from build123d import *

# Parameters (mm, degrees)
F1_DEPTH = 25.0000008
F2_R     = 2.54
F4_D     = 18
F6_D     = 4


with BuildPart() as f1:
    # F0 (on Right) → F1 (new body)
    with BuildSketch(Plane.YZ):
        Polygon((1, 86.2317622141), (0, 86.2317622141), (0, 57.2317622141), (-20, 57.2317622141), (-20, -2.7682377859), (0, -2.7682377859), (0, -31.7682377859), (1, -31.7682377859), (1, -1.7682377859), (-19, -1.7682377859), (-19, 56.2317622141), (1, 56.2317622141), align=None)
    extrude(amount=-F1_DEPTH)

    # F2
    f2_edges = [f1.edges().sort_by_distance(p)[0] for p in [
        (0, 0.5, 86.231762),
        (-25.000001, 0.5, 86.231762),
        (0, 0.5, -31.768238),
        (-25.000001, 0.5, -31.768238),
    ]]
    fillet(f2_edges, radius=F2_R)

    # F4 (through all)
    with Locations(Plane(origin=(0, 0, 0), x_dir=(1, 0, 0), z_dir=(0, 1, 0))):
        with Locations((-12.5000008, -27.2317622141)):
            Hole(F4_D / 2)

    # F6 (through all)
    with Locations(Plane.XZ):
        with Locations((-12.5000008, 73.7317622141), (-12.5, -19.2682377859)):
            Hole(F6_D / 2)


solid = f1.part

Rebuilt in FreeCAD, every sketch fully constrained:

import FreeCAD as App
import Part
import Sketcher
from FreeCAD import Vector
Q = App.Units.Quantity


def edges_at(feature, points):
    """Names of the edges that pass closest to the given points."""
    edges = feature.Shape.Edges
    near = lambda p: min(range(len(edges)), key=lambda i: edges[i].distToShape(Part.Vertex(*p))[0])
    return sorted({f"Edge{near(p) + 1}" for p in points})

doc = App.newDocument("Part")
params = doc.addObject("Spreadsheet::Sheet", "Params")
for row, (alias, value) in enumerate([
    ("sketch1_width", "1 mm"),
    ("sketch1_width2", "20 mm"),
    ("sketch1_height", "29 mm"),
    ("sketch1_height2", "60 mm"),
    ("sketch1_height3", "30 mm"),
    ("pad1_length", "25.000001 mm"),
    ("fillet_radius", "2.54 mm"),
    ("sketch2_diameter", "18 mm"),
    ("hole_diameter", "18 mm"),
    ("sketch3_diameter", "4 mm"),
    ("hole2_diameter", "4 mm"),
], start=1):
    params.set(f"A{row}", alias)
    params.set(f"B{row}", "=" + value)
    params.setAlias(f"B{row}", alias)

body = doc.addObject("PartDesign::Body", "Body")

# Sketch on YZ plane
sketch1 = doc.addObject("Sketcher::SketchObject", "Sketch")
body.addObject(sketch1)
sketch1.AttachmentSupport = (doc.YZ_Plane, [""])
sketch1.MapMode = "FlatFace"
sketch1.addGeometry(Part.LineSegment(Vector(1, 86.2, 0), Vector(0, 86.2, 0)), False)
sketch1.addGeometry(Part.LineSegment(Vector(0, 86.2, 0), Vector(0, 57.2, 0)), False)
sketch1.addGeometry(Part.LineSegment(Vector(0, 57.2, 0), Vector(-20, 57.2, 0)), False)
sketch1.addGeometry(Part.LineSegment(Vector(-20, 57.2, 0), Vector(-20, -2.8, 0)), False)
sketch1.addGeometry(Part.LineSegment(Vector(-20, -2.8, 0), Vector(0, -2.8, 0)), False)
sketch1.addGeometry(Part.LineSegment(Vector(0, -2.8, 0), Vector(0, -31.8, 0)), False)
sketch1.addGeometry(Part.LineSegment(Vector(0, -31.8, 0), Vector(1, -31.8, 0)), False)
sketch1.addGeometry(Part.LineSegment(Vector(1, -31.8, 0), Vector(1, -1.8, 0)), False)
sketch1.addGeometry(Part.LineSegment(Vector(1, -1.8, 0), Vector(-19, -1.8, 0)), False)
sketch1.addGeometry(Part.LineSegment(Vector(-19, -1.8, 0), Vector(-19, 56.2, 0)), False)
sketch1.addGeometry(Part.LineSegment(Vector(-19, 56.2, 0), Vector(1, 56.2, 0)), False)
sketch1.addGeometry(Part.LineSegment(Vector(1, 56.2, 0), Vector(1, 86.2, 0)), False)
sketch1.addConstraint(Sketcher.Constraint("Coincident", 0, 2, 1, 1))
sketch1.addConstraint(Sketcher.Constraint("Coincident", 1, 2, 2, 1))
sketch1.addConstraint(Sketcher.Constraint("Coincident", 2, 2, 3, 1))
sketch1.addConstraint(Sketcher.Constraint("Coincident", 3, 2, 4, 1))
sketch1.addConstraint(Sketcher.Constraint("Coincident", 4, 2, 5, 1))
sketch1.addConstraint(Sketcher.Constraint("Coincident", 5, 2, 6, 1))
sketch1.addConstraint(Sketcher.Constraint("Coincident", 6, 2, 7, 1))
sketch1.addConstraint(Sketcher.Constraint("Coincident", 7, 2, 8, 1))
sketch1.addConstraint(Sketcher.Constraint("Coincident", 8, 2, 9, 1))
sketch1.addConstraint(Sketcher.Constraint("Coincident", 9, 2, 10, 1))
sketch1.addConstraint(Sketcher.Constraint("Coincident", 10, 2, 11, 1))
sketch1.addConstraint(Sketcher.Constraint("Coincident", 11, 2, 0, 1))
sketch1.addConstraint(Sketcher.Constraint("Horizontal", 0))
sketch1.addConstraint(Sketcher.Constraint("Vertical", 1))
sketch1.addConstraint(Sketcher.Constraint("Horizontal", 2))
sketch1.addConstraint(Sketcher.Constraint("Vertical", 3))
sketch1.addConstraint(Sketcher.Constraint("Horizontal", 4))
sketch1.addConstraint(Sketcher.Constraint("Vertical", 5))
sketch1.addConstraint(Sketcher.Constraint("Horizontal", 6))
sketch1.addConstraint(Sketcher.Constraint("Vertical", 7))
sketch1.addConstraint(Sketcher.Constraint("Horizontal", 8))
sketch1.addConstraint(Sketcher.Constraint("Vertical", 9))
sketch1.addConstraint(Sketcher.Constraint("Horizontal", 10))
sketch1.addConstraint(Sketcher.Constraint("Vertical", 11))
sketch1.addConstraint(Sketcher.Constraint("PointOnObject", 0, 2, -2))
sketch1.addConstraint(Sketcher.Constraint("PointOnObject", 4, 2, -2))
sketch1.addConstraint(Sketcher.Constraint("Vertical", 7, 2, 10, 2))
sketch1.addConstraint(Sketcher.Constraint("Equal", 4, 8))
sketch1.addConstraint(Sketcher.Constraint("Equal", 1, 5))
sketch1.addConstraint(Sketcher.Constraint("Equal", 7, 11))
sketch1.addConstraint(Sketcher.Constraint("DistanceX", 0, 2, 0, 1, Q("1 mm")))
sketch1.addConstraint(Sketcher.Constraint("DistanceX", 2, 2, 2, 1, Q("20 mm")))
sketch1.addConstraint(Sketcher.Constraint("DistanceY", 1, 2, 1, 1, Q("29 mm")))
sketch1.addConstraint(Sketcher.Constraint("DistanceY", 3, 2, 3, 1, Q("60 mm")))
sketch1.addConstraint(Sketcher.Constraint("DistanceY", 7, 1, 7, 2, Q("30 mm")))
sketch1.addConstraint(Sketcher.Constraint("DistanceY", -1, 1, 0, 2, Q("86.231762 mm")))
sketch1.setExpression("Constraints[30]", "Params.sketch1_width")
sketch1.setExpression("Constraints[31]", "Params.sketch1_width2")
sketch1.setExpression("Constraints[32]", "Params.sketch1_height")
sketch1.setExpression("Constraints[33]", "Params.sketch1_height2")
sketch1.setExpression("Constraints[34]", "Params.sketch1_height3")
pad1 = doc.addObject("PartDesign::Pad", "Pad")
body.addObject(pad1)
pad1.Profile = sketch1
pad1.setExpression("Length", "Params.pad1_length")
pad1.Reversed = True
doc.recompute()

fillet = doc.addObject("PartDesign::Fillet", "Fillet")
body.addObject(fillet)
fillet.Base = (pad1, edges_at(pad1, [
    (0, 0.5, 86.232),
    (-25, 0.5, 86.232),
    (0, 0.5, -31.768),
    (-25, 0.5, -31.768),
]))
fillet.setExpression("Radius", "Params.fillet_radius")

# Sketch on XZ plane
sketch2 = doc.addObject("Sketcher::SketchObject", "Sketch001")
body.addObject(sketch2)
sketch2.AttachmentSupport = (doc.XZ_Plane, [""])
sketch2.MapMode = "FlatFace"
sketch2.addGeometry(Part.Circle(Vector(-13, 27, 0), Vector(0, 0, 1), 9), False)
sketch2.addConstraint(Sketcher.Constraint("Diameter", 0, Q("18 mm")))
sketch2.addConstraint(Sketcher.Constraint("DistanceX", 0, 3, -1, 1, Q("12.500001 mm")))
sketch2.addConstraint(Sketcher.Constraint("DistanceY", -1, 1, 0, 3, Q("27.231762 mm")))
sketch2.setExpression("Constraints[0]", "Params.sketch2_diameter")
doc.recompute()
hole = doc.addObject("PartDesign::Hole", "Hole")
body.addObject(hole)
hole.Profile = sketch2
hole.ThreadType = "None"
hole.setExpression("Diameter", "Params.hole_diameter")
hole.DepthType = "ThroughAll"
hole.Reversed = True

# Sketch on XZ plane
sketch3 = doc.addObject("Sketcher::SketchObject", "Sketch002")
body.addObject(sketch3)
sketch3.AttachmentSupport = (doc.XZ_Plane, [""])
sketch3.MapMode = "FlatFace"
sketch3.addGeometry(Part.Circle(Vector(-12.5, 73.7, 0), Vector(0, 0, 1), 2), False)
sketch3.addGeometry(Part.Circle(Vector(-12.5, -19.3, 0), Vector(0, 0, 1), 2), False)
sketch3.addConstraint(Sketcher.Constraint("Equal", 0, 1))
sketch3.addConstraint(Sketcher.Constraint("Vertical", 0, 3, 1, 3))
sketch3.addConstraint(Sketcher.Constraint("Diameter", 0, Q("4 mm")))
sketch3.addConstraint(Sketcher.Constraint("DistanceY", 1, 3, 0, 3, Q("93 mm")))
sketch3.addConstraint(Sketcher.Constraint("DistanceX", 0, 3, -1, 1, Q("12.500001 mm")))
sketch3.addConstraint(Sketcher.Constraint("DistanceY", -1, 1, 0, 3, Q("73.731762 mm")))
sketch3.setExpression("Constraints[2]", "Params.sketch3_diameter")
doc.recompute()
hole2 = doc.addObject("PartDesign::Hole", "Hole001")
body.addObject(hole2)
hole2.Profile = sketch3
hole2.ThreadType = "None"
hole2.setExpression("Diameter", "Params.hole2_diameter")
hole2.DepthType = "ThroughAll"

doc.recompute()
